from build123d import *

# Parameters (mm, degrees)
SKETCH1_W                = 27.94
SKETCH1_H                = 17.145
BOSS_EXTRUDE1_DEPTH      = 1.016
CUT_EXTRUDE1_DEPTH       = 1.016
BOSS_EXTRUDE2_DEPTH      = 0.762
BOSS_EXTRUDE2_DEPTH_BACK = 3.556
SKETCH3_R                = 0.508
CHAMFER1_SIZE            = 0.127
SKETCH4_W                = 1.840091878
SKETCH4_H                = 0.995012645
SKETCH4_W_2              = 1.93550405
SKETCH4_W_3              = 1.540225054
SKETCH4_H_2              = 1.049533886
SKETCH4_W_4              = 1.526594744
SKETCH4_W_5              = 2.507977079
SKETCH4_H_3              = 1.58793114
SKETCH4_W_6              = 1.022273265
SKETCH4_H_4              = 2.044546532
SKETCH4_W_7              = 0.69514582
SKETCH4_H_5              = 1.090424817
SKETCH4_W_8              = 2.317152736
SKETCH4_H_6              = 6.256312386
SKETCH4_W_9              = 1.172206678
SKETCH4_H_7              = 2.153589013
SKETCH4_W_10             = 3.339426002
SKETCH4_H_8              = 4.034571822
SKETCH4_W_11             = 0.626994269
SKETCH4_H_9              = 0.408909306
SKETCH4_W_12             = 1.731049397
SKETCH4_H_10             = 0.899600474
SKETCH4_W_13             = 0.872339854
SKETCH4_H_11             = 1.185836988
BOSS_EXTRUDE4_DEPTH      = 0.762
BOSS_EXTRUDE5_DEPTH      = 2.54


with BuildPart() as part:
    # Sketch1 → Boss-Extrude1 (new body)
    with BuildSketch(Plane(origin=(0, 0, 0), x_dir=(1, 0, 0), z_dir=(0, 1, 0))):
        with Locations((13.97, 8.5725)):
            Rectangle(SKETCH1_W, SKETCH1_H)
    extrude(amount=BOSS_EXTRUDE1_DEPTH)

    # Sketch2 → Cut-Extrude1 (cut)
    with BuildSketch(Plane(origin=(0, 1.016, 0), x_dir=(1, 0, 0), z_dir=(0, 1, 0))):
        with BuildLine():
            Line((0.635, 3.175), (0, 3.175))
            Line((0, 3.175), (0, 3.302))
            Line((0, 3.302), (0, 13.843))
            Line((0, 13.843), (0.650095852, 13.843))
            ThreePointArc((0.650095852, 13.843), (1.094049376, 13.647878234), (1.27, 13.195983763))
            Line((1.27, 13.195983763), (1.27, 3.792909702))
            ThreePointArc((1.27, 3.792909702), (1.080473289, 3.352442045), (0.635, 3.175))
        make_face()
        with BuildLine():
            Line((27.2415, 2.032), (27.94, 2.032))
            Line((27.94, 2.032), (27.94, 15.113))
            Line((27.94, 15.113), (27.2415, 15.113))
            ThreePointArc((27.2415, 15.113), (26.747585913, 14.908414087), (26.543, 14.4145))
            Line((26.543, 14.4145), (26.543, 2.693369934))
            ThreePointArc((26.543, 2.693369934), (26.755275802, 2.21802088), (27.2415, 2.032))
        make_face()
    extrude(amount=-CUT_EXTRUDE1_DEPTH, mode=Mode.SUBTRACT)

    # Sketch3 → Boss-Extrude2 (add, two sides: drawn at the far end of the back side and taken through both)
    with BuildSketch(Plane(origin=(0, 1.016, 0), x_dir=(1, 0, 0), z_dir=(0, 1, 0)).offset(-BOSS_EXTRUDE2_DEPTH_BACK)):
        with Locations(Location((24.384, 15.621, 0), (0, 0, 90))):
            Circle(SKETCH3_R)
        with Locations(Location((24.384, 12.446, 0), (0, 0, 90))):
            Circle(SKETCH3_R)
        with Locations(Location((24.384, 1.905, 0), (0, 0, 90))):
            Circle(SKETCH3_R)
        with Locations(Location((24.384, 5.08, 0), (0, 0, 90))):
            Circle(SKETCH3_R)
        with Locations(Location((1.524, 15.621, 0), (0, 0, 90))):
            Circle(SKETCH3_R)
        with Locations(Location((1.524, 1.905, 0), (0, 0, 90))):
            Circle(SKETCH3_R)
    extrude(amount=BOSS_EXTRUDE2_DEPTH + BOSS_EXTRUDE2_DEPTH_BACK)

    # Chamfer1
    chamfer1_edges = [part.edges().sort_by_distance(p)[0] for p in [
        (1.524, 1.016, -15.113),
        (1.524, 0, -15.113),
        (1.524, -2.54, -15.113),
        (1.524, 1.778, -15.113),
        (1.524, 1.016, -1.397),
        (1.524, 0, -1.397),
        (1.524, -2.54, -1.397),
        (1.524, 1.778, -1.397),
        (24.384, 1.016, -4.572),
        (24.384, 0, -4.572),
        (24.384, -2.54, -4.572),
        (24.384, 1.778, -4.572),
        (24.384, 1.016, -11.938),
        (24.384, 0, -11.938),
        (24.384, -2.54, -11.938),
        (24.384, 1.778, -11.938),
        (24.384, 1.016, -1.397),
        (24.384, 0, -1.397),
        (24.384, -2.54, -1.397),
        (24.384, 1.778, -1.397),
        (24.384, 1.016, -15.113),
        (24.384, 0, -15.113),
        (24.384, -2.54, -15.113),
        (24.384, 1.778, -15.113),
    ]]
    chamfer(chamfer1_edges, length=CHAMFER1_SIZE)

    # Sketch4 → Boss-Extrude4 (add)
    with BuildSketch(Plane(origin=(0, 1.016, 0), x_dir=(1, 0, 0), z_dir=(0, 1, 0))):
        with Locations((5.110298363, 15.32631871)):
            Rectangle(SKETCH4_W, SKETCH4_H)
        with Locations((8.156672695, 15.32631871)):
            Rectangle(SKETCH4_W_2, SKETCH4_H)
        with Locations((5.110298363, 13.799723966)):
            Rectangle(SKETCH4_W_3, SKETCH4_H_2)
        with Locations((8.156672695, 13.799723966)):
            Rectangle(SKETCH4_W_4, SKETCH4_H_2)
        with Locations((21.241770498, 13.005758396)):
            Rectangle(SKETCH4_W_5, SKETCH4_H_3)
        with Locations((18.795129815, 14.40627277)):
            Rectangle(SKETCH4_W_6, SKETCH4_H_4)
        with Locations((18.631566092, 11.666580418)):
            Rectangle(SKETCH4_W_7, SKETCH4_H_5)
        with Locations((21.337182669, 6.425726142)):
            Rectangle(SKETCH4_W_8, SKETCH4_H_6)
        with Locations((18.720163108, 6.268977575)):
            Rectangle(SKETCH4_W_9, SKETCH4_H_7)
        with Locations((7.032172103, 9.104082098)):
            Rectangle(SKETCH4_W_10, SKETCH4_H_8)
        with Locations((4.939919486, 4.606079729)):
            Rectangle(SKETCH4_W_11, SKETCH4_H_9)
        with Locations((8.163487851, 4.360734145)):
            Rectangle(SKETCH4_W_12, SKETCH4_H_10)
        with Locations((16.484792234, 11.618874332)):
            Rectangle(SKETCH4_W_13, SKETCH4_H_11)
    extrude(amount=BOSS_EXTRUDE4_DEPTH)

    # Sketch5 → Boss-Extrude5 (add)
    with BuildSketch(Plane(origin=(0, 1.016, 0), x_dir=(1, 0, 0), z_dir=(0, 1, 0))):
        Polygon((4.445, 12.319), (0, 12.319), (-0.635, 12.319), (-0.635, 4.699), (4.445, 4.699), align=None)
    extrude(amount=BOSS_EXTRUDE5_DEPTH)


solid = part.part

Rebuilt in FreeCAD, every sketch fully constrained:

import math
import FreeCAD as App
import Part
import Sketcher
Q = App.Units.Quantity


def edges_at(feature, points):
    """Names of the edges that pass closest to the given points."""
    edges = feature.Shape.Edges
    near = lambda p: min(range(len(edges)), key=lambda i: edges[i].distToShape(Part.Vertex(*p))[0])
    return sorted({f"Edge{near(p) + 1}" for p in points})

doc = App.newDocument("Part")
body = doc.addObject("PartDesign::Body", "Body")

# Sketch on XZ plane
sketch1 = body.newObject("Sketcher::SketchObject", "Sketch")
sketch1.AttachmentSupport = (doc.getObject("XZ_Plane"), [""])
sketch1.MapMode = "FlatFace"
sketch1.addGeometry([
    Part.LineSegment(App.Vector(0, -17, 0), App.Vector(0, 0, 0)),
    Part.LineSegment(App.Vector(0, 0, 0), App.Vector(28, 0, 0)),
    Part.LineSegment(App.Vector(28, 0, 0), App.Vector(28, -17, 0)),
    Part.LineSegment(App.Vector(28, -17, 0), App.Vector(0, -17, 0)),
], False)
sketch1.addConstraint([
    Sketcher.Constraint("Coincident", 0, 2, 1, 1),
    Sketcher.Constraint("Coincident", 1, 2, 2, 1),
    Sketcher.Constraint("Coincident", 2, 2, 3, 1),
    Sketcher.Constraint("Coincident", 3, 2, 0, 1),
    Sketcher.Constraint("Vertical", 0),
    Sketcher.Constraint("Horizontal", 1),
    Sketcher.Constraint("Vertical", 2),
    Sketcher.Constraint("Horizontal", 3),
    Sketcher.Constraint("Coincident", 0, 2, -1, 1),
    Sketcher.Constraint("DistanceX", 1, 1, 1, 2, Q("1.1 in")),
    Sketcher.Constraint("DistanceY", 0, 1, 0, 2, Q("0.675 in")),
])
pad1 = body.newObject("PartDesign::Pad", "Pad")
pad1.Profile = sketch1
pad1.Length = Q("0.04 in")
pad1.Reversed = True

# Sketch on XZ plane
sketch2 = body.newObject("Sketcher::SketchObject", "Sketch001")
sketch2.AttachmentSupport = (doc.getObject("XZ_Plane"), [""])
sketch2.MapMode = "FlatFace"
sketch2.AttachmentOffset = App.Placement(App.Vector(0, 0, -0.04 * 25.4), App.Rotation())
sketch2.addGeometry([
    Part.LineSegment(App.Vector(0, -3.2, 0), App.Vector(0.6, -3.2, 0)),  # 0
    Part.ArcOfCircle(Part.Circle(App.Vector(0.6, -3.8, 0), App.Vector(0, 0, 1), 0.6), math.radians(1), math.radians(91)),  # 1
    Part.LineSegment(App.Vector(1.3, -3.8, 0), App.Vector(1.3, -13.2, 0)),  # 2
    Part.ArcOfCircle(Part.Circle(App.Vector(0.6, -13.2, 0), App.Vector(0, 0, 1), 0.6), math.radians(-89), math.radians(1)),  # 3
    Part.LineSegment(App.Vector(0.7, -13.8, 0), App.Vector(0, -13.8, 0)),  # 4
    Part.LineSegment(App.Vector(0, -13.8, 0), App.Vector(0, -3.2, 0)),  # 5
    Part.LineSegment(App.Vector(27.2, -2, 0), App.Vector(27.9, -2, 0)),  # 6
    Part.LineSegment(App.Vector(27.9, -2, 0), App.Vector(27.9, -15.1, 0)),  # 7
    Part.LineSegment(App.Vector(27.9, -15.1, 0), App.Vector(27.2, -15.1, 0)),  # 8
    Part.ArcOfCircle(Part.Circle(App.Vector(27.2, -14.4, 0), App.Vector(0, 0, 1), 0.7), math.radians(180), math.radians(270)),  # 9
    Part.LineSegment(App.Vector(26.5, -14.4, 0), App.Vector(26.5, -2.7, 0)),  # 10
    Part.ArcOfCircle(Part.Circle(App.Vector(27.2, -2.7, 0), App.Vector(0, 0, 1), 0.7), math.radians(88), math.radians(178)),  # 11
], False)
sketch2.addConstraint([
    Sketcher.Constraint("Coincident", 0, 2, 1, 2),
    Sketcher.Constraint("Coincident", 1, 1, 2, 1),
    Sketcher.Constraint("Coincident", 2, 2, 3, 2),
    Sketcher.Constraint("Coincident", 3, 1, 4, 1),
    Sketcher.Constraint("Coincident", 4, 2, 5, 1),
    Sketcher.Constraint("Coincident", 5, 2, 0, 1),
    Sketcher.Constraint("Coincident", 6, 2, 7, 1),
    Sketcher.Constraint("Coincident", 7, 2, 8, 1),
    Sketcher.Constraint("Tangent", 8, 2, 9, 2),
    Sketcher.Constraint("Tangent", 9, 1, 10, 1),
    Sketcher.Constraint("Coincident", 10, 2, 11, 2),
    Sketcher.Constraint("Coincident", 11, 1, 6, 1),
    Sketcher.Constraint("Horizontal", 0),
    Sketcher.Constraint("Vertical", 2),
    Sketcher.Constraint("Horizontal", 4),
    Sketcher.Constraint("Vertical", 5),
    Sketcher.Constraint("Horizontal", 6),
    Sketcher.Constraint("Vertical", 7),
    Sketcher.Constraint("Horizontal", 8),
    Sketcher.Constraint("Vertical", 10),
    Sketcher.Constraint("PointOnObject", 4, 2, -2),
    Sketcher.Constraint("Vertical", 8, 2, 11, 1),
    Sketcher.Constraint("DistanceY", 5, 1, 5, 2, Q("0.42 in")),
    Sketcher.Constraint("DistanceX", -1, 1, 6, 2, Q("1.1 in")),
    Sketcher.Constraint("Radius", 9, Q("0.0275 in")),
    Sketcher.Constraint("DistanceX", 0, 1, 0, 2, Q("0.025 in")),
    Sketcher.Constraint("DistanceY", 7, 2, 7, 1, Q("0.515 in")),
    Sketcher.Constraint("DistanceX", -1, 1, 1, 1, Q("0.05 in")),
    Sketcher.Constraint("DistanceY", 6, 2, -1, 1, Q("0.08 in")),
    Sketcher.Constraint("DistanceY", 7, 2, 3, 1, Q("0.05 in")),
    Sketcher.Constraint("DistanceX", 6, 1, 6, 2, Q("0.0275 in")),
    Sketcher.Constraint("Radius", 11, Q("0.680188 mm")),
    Sketcher.Constraint("Radius", 1, Q("0.626513 mm")),
    Sketcher.Constraint("Radius", 3, Q("0.633605 mm")),
    Sketcher.Constraint("DistanceY", 10, 1, 10, 2, Q("11.72113 mm")),
    Sketcher.Constraint("DistanceX", 4, 2, 4, 1, Q("0.650096 mm")),
    Sketcher.Constraint("DistanceY", 2, 2, 2, 1, Q("9.403074 mm")),
    Sketcher.Constraint("DistanceX", -1, 1, 3, 3, Q("0.63654 mm")),
])
pocket1 = body.newObject("PartDesign::Pocket", "Pocket")
pocket1.Profile = sketch2
pocket1.Length = Q("0.04 in")
pocket1.Reversed = True

# Sketch on XZ plane
sketch3 = body.newObject("Sketcher::SketchObject", "Sketch002")
sketch3.AttachmentSupport = (doc.getObject("XZ_Plane"), [""])
sketch3.MapMode = "FlatFace"
sketch3.AttachmentOffset = App.Placement(App.Vector(0, 0, -0.04 * 25.4), App.Rotation())
sketch3.addGeometry([
    Part.Circle(App.Vector(24.4, -15.6, 0), App.Vector(0, 0, 1), 0.5),  # 0
    Part.Circle(App.Vector(24.4, -12.4, 0), App.Vector(0, 0, 1), 0.5),  # 1
    Part.Circle(App.Vector(24.4, -1.9, 0), App.Vector(0, 0, 1), 0.5),  # 2
    Part.Circle(App.Vector(24.4, -5.1, 0), App.Vector(0, 0, 1), 0.5),  # 3
    Part.Circle(App.Vector(1.5, -15.6, 0), App.Vector(0, 0, 1), 0.5),  # 4
    Part.Circle(App.Vector(1.5, -1.9, 0), App.Vector(0, 0, 1), 0.5),  # 5
], False)
sketch3.addConstraint([
    Sketcher.Constraint("Equal", 0, 1),
    Sketcher.Constraint("Equal", 1, 2),
    Sketcher.Constraint("Equal", 2, 3),
    Sketcher.Constraint("Equal", 3, 4),
    Sketcher.Constraint("Equal", 4, 5),
    Sketcher.Constraint("Horizontal", 0, 3, 4, 3),
    Sketcher.Constraint("Horizontal", 2, 3, 5, 3),
    Sketcher.Constraint("Vertical", 0, 3, 1, 3),
    Sketcher.Constraint("Vertical", 1, 3, 2, 3),
    Sketcher.Constraint("Vertical", 2, 3, 3, 3),
    Sketcher.Constraint("Vertical", 4, 3, 5, 3),
    Sketcher.Constraint("Diameter", 0, Q("0.04 in")),
    Sketcher.Constraint("DistanceY", 3, 3, -1, 1, Q("0.2 in")),
    Sketcher.Constraint("DistanceX", 4, 3, 0, 3, Q("0.9 in")),
    Sketcher.Constraint("DistanceX", -1, 1, 0, 3, Q("0.96 in")),
    Sketcher.Constraint("DistanceY", 1, 3, -1, 1, Q("0.49 in")),
    Sketcher.Constraint("DistanceY", 0, 3, 2, 3, Q("0.54 in")),
    Sketcher.Constraint("DistanceY", 0, 3, -1, 1, Q("0.615 in")),
])
pad2 = body.newObject("PartDesign::Pad", "Pad001")
pad2.Profile = sketch3
pad2.Type = "TwoLengths"
pad2.Length = Q("0.03 in")
pad2.Length2 = Q("0.14 in")
pad2.Reversed = True
doc.recompute()

chamfer = body.newObject("PartDesign::Chamfer", "Chamfer")
chamfer.Base = (pad2, edges_at(pad2, [
    (1.524, 1.016, -15.113),
    (1.524, 0, -15.113),
    (1.524, -2.54, -15.113),
    (1.524, 1.778, -15.113),
    (1.524, 1.016, -1.397),
    (1.524, 0, -1.397),
    (1.524, -2.54, -1.397),
    (1.524, 1.778, -1.397),
    (24.384, 1.016, -4.572),
    (24.384, 0, -4.572),
    (24.384, -2.54, -4.572),
    (24.384, 1.778, -4.572),
    (24.384, 1.016, -11.938),
    (24.384, 0, -11.938),
    (24.384, -2.54, -11.938),
    (24.384, 1.778, -11.938),
    (24.384, 1.016, -1.397),
    (24.384, 0, -1.397),
    (24.384, -2.54, -1.397),
    (24.384, 1.778, -1.397),
    (24.384, 1.016, -15.113),
    (24.384, 0, -15.113),
    (24.384, -2.54, -15.113),
    (24.384, 1.778, -15.113),
]))
chamfer.Size = Q("0.005 in")

# Sketch on XZ plane
sketch4 = body.newObject("Sketcher::SketchObject", "Sketch003")
sketch4.AttachmentSupport = (doc.getObject("XZ_Plane"), [""])
sketch4.MapMode = "FlatFace"
sketch4.AttachmentOffset = App.Placement(App.Vector(0, 0, -0.04 * 25.4), App.Rotation())
sketch4.addGeometry([
    Part.LineSegment(App.Vector(4.19, -15.82, 0), App.Vector(4.19, -14.83, 0)),  # 0
    Part.LineSegment(App.Vector(4.19, -14.83, 0), App.Vector(6.03, -14.83, 0)),  # 1
    Part.LineSegment(App.Vector(6.03, -14.83, 0), App.Vector(6.03, -15.82, 0)),  # 2
    Part.LineSegment(App.Vector(6.03, -15.82, 0), App.Vector(4.19, -15.82, 0)),  # 3
    Part.LineSegment(App.Vector(7.19, -15.82, 0), App.Vector(7.19, -14.83, 0)),  # 4
    Part.LineSegment(App.Vector(7.19, -14.83, 0), App.Vector(9.12, -14.83, 0)),  # 5
    Part.LineSegment(App.Vector(9.12, -14.83, 0), App.Vector(9.12, -15.82, 0)),  # 6
    Part.LineSegment(App.Vector(9.12, -15.82, 0), App.Vector(7.19, -15.82, 0)),  # 7
    Part.LineSegment(App.Vector(4.34, -14.32, 0), App.Vector(4.34, -13.27, 0)),  # 8
    Part.LineSegment(App.Vector(4.34, -13.27, 0), App.Vector(5.88, -13.27, 0)),  # 9
    Part.LineSegment(App.Vector(5.88, -13.27, 0), App.Vector(5.88, -14.32, 0)),  # 10
    Part.LineSegment(App.Vector(5.88, -14.32, 0), App.Vector(4.34, -14.32, 0)),  # 11
    Part.LineSegment(App.Vector(7.39, -14.32, 0), App.Vector(7.39, -13.27, 0)),  # 12
    Part.LineSegment(App.Vector(7.39, -13.27, 0), App.Vector(8.92, -13.27, 0)),  # 13
    Part.LineSegment(App.Vector(8.92, -13.27, 0), App.Vector(8.92, -14.32, 0)),  # 14
    Part.LineSegment(App.Vector(8.92, -14.32, 0), App.Vector(7.39, -14.32, 0)),  # 15
    Part.LineSegment(App.Vector(19.99, -13.8, 0), App.Vector(19.99, -12.21, 0)),  # 16
    Part.LineSegment(App.Vector(19.99, -12.21, 0), App.Vector(22.5, -12.21, 0)),  # 17
    Part.LineSegment(App.Vector(22.5, -12.21, 0), App.Vector(22.5, -13.8, 0)),  # 18
    Part.LineSegment(App.Vector(22.5, -13.8, 0), App.Vector(19.99, -13.8, 0)),  # 19
    Part.LineSegment(App.Vector(18.28, -15.43, 0), App.Vector(18.28, -13.38, 0)),  # 20
    Part.LineSegment(App.Vector(18.28, -13.38, 0), App.Vector(19.31, -13.38, 0)),  # 21
    Part.LineSegment(App.Vector(19.31, -13.38, 0), App.Vector(19.31, -15.43, 0)),  # 22
    Part.LineSegment(App.Vector(19.31, -15.43, 0), App.Vector(18.28, -15.43, 0)),  # 23
    Part.LineSegment(App.Vector(18.28, -12.21, 0), App.Vector(18.28, -11.12, 0)),  # 24
    Part.LineSegment(App.Vector(18.28, -11.12, 0), App.Vector(18.98, -11.12, 0)),  # 25
    Part.LineSegment(App.Vector(18.98, -11.12, 0), App.Vector(18.98, -12.21, 0)),  # 26
    Part.LineSegment(App.Vector(18.98, -12.21, 0), App.Vector(18.28, -12.21, 0)),  # 27
    Part.LineSegment(App.Vector(20.18, -9.55, 0), App.Vector(20.18, -3.3, 0)),  # 28
    Part.LineSegment(App.Vector(20.18, -3.3, 0), App.Vector(22.5, -3.3, 0)),  # 29
    Part.LineSegment(App.Vector(22.5, -3.3, 0), App.Vector(22.5, -9.55, 0)),  # 30
    Part.LineSegment(App.Vector(22.5, -9.55, 0), App.Vector(20.18, -9.55, 0)),  # 31
    Part.LineSegment(App.Vector(18.13, -7.35, 0), App.Vector(18.13, -5.19, 0)),  # 32
    Part.LineSegment(App.Vector(18.13, -5.19, 0), App.Vector(19.31, -5.19, 0)),  # 33
    Part.LineSegment(App.Vector(19.31, -5.19, 0), App.Vector(19.31, -7.35, 0)),  # 34
    Part.LineSegment(App.Vector(19.31, -7.35, 0), App.Vector(18.13, -7.35, 0)),  # 35
    Part.LineSegment(App.Vector(5.36, -11.12, 0), App.Vector(5.36, -7.09, 0)),  # 36
    Part.LineSegment(App.Vector(5.36, -7.09, 0), App.Vector(8.7, -7.09, 0)),  # 37
    Part.LineSegment(App.Vector(8.7, -7.09, 0), App.Vector(8.7, -11.12, 0)),  # 38
    Part.LineSegment(App.Vector(8.7, -11.12, 0), App.Vector(5.36, -11.12, 0)),  # 39
    Part.LineSegment(App.Vector(4.63, -4.81, 0), App.Vector(4.63, -4.4, 0)),  # 40
    Part.LineSegment(App.Vector(4.63, -4.4, 0), App.Vector(5.25, -4.4, 0)),  # 41
    Part.LineSegment(App.Vector(5.25, -4.4, 0), App.Vector(5.25, -4.81, 0)),  # 42
    Part.LineSegment(App.Vector(5.25, -4.81, 0), App.Vector(4.63, -4.81, 0)),  # 43
    Part.LineSegment(App.Vector(7.3, -4.81, 0), App.Vector(7.3, -3.91, 0)),  # 44
    Part.LineSegment(App.Vector(7.3, -3.91, 0), App.Vector(9.03, -3.91, 0)),  # 45
    Part.LineSegment(App.Vector(9.03, -3.91, 0), App.Vector(9.03, -4.81, 0)),  # 46
    Part.LineSegment(App.Vector(9.03, -4.81, 0), App.Vector(7.3, -4.81, 0)),  # 47
    Part.LineSegment(App.Vector(16.05, -12.21, 0), App.Vector(16.05, -11.03, 0)),  # 48
    Part.LineSegment(App.Vector(16.05, -11.03, 0), App.Vector(16.92, -11.03, 0)),  # 49
    Part.LineSegment(App.Vector(16.92, -11.03, 0), App.Vector(16.92, -12.21, 0)),  # 50
    Part.LineSegment(App.Vector(16.92, -12.21, 0), App.Vector(16.05, -12.21, 0)),  # 51
], False)
sketch4.addConstraint([
    Sketcher.Constraint("Coincident", 0, 2, 1, 1),
    Sketcher.Constraint("Coincident", 1, 2, 2, 1),
    Sketcher.Constraint("Coincident", 2, 2, 3, 1),
    Sketcher.Constraint("Coincident", 3, 2, 0, 1),
    Sketcher.Constraint("Coincident", 4, 2, 5, 1),
    Sketcher.Constraint("Coincident", 5, 2, 6, 1),
    Sketcher.Constraint("Coincident", 6, 2, 7, 1),
    Sketcher.Constraint("Coincident", 7, 2, 4, 1),
    Sketcher.Constraint("Coincident", 8, 2, 9, 1),
    Sketcher.Constraint("Coincident", 9, 2, 10, 1),
    Sketcher.Constraint("Coincident", 10, 2, 11, 1),
    Sketcher.Constraint("Coincident", 11, 2, 8, 1),
    Sketcher.Constraint("Coincident", 12, 2, 13, 1),
    Sketcher.Constraint("Coincident", 13, 2, 14, 1),
    Sketcher.Constraint("Coincident", 14, 2, 15, 1),
    Sketcher.Constraint("Coincident", 15, 2, 12, 1),
    Sketcher.Constraint("Coincident", 16, 2, 17, 1),
    Sketcher.Constraint("Coincident", 17, 2, 18, 1),
    Sketcher.Constraint("Coincident", 18, 2, 19, 1),
    Sketcher.Constraint("Coincident", 19, 2, 16, 1),
    Sketcher.Constraint("Coincident", 20, 2, 21, 1),
    Sketcher.Constraint("Coincident", 21, 2, 22, 1),
    Sketcher.Constraint("Coincident", 22, 2, 23, 1),
    Sketcher.Constraint("Coincident", 23, 2, 20, 1),
    Sketcher.Constraint("Coincident", 24, 2, 25, 1),
    Sketcher.Constraint("Coincident", 25, 2, 26, 1),
    Sketcher.Constraint("Coincident", 26, 2, 27, 1),
    Sketcher.Constraint("Coincident", 27, 2, 24, 1),
    Sketcher.Constraint("Coincident", 28, 2, 29, 1),
    Sketcher.Constraint("Coincident", 29, 2, 30, 1),
    Sketcher.Constraint("Coincident", 30, 2, 31, 1),
    Sketcher.Constraint("Coincident", 31, 2, 28, 1),
    Sketcher.Constraint("Coincident", 32, 2, 33, 1),
    Sketcher.Constraint("Coincident", 33, 2, 34, 1),
    Sketcher.Constraint("Coincident", 34, 2, 35, 1),
    Sketcher.Constraint("Coincident", 35, 2, 32, 1),
    Sketcher.Constraint("Coincident", 36, 2, 37, 1),
    Sketcher.Constraint("Coincident", 37, 2, 38, 1),
    Sketcher.Constraint("Coincident", 38, 2, 39, 1),
    Sketcher.Constraint("Coincident", 39, 2, 36, 1),
    Sketcher.Constraint("Coincident", 40, 2, 41, 1),
    Sketcher.Constraint("Coincident", 41, 2, 42, 1),
    Sketcher.Constraint("Coincident", 42, 2, 43, 1),
    Sketcher.Constraint("Coincident", 43, 2, 40, 1),
    Sketcher.Constraint("Coincident", 44, 2, 45, 1),
    Sketcher.Constraint("Coincident", 45, 2, 46, 1),
    Sketcher.Constraint("Coincident", 46, 2, 47, 1),
    Sketcher.Constraint("Coincident", 47, 2, 44, 1),
    Sketcher.Constraint("Coincident", 48, 2, 49, 1),
    Sketcher.Constraint("Coincident", 49, 2, 50, 1),
    Sketcher.Constraint("Coincident", 50, 2, 51, 1),
    Sketcher.Constraint("Coincident", 51, 2, 48, 1),
    Sketcher.Constraint("Vertical", 0),
    Sketcher.Constraint("Horizontal", 1),
    Sketcher.Constraint("Vertical", 2),
    Sketcher.Constraint("Horizontal", 3),
    Sketcher.Constraint("Vertical", 4),
    Sketcher.Constraint("Horizontal", 5),
    Sketcher.Constraint("Vertical", 6),
    Sketcher.Constraint("Horizontal", 7),
    Sketcher.Constraint("Vertical", 8),
    Sketcher.Constraint("Horizontal", 9),
    Sketcher.Constraint("Vertical", 10),
    Sketcher.Constraint("Horizontal", 11),
    Sketcher.Constraint("Vertical", 12),
    Sketcher.Constraint("Horizontal", 13),
    Sketcher.Constraint("Vertical", 14),
    Sketcher.Constraint("Horizontal", 15),
    Sketcher.Constraint("Vertical", 16),
    Sketcher.Constraint("Horizontal", 17),
    Sketcher.Constraint("Vertical", 18),
    Sketcher.Constraint("Horizontal", 19),
    Sketcher.Constraint("Vertical", 20),
    Sketcher.Constraint("Horizontal", 21),
    Sketcher.Constraint("Vertical", 22),
    Sketcher.Constraint("Horizontal", 23),
    Sketcher.Constraint("Vertical", 24),
    Sketcher.Constraint("Horizontal", 25),
    Sketcher.Constraint("Vertical", 26),
    Sketcher.Constraint("Horizontal", 27),
    Sketcher.Constraint("Vertical", 28),
    Sketcher.Constraint("Horizontal", 29),
    Sketcher.Constraint("Vertical", 30),
    Sketcher.Constraint("Horizontal", 31),
    Sketcher.Constraint("Vertical", 32),
    Sketcher.Constraint("Horizontal", 33),
    Sketcher.Constraint("Vertical", 34),
    Sketcher.Constraint("Horizontal", 35),
    Sketcher.Constraint("Vertical", 36),
    Sketcher.Constraint("Horizontal", 37),
    Sketcher.Constraint("Vertical", 38),
    Sketcher.Constraint("Horizontal", 39),
    Sketcher.Constraint("Vertical", 40),
    Sketcher.Constraint("Horizontal", 41),
    Sketcher.Constraint("Vertical", 42),
    Sketcher.Constraint("Horizontal", 43),
    Sketcher.Constraint("Vertical", 44),
    Sketcher.Constraint("Horizontal", 45),
    Sketcher.Constraint("Vertical", 46),
    Sketcher.Constraint("Horizontal", 47),
    Sketcher.Constraint("Vertical", 48),
    Sketcher.Constraint("Horizontal", 49),
    Sketcher.Constraint("Vertical", 50),
    Sketcher.Constraint("Horizontal", 51),
    Sketcher.Constraint("Horizontal", 1, 2, 4, 2),
    Sketcher.Constraint("Horizontal", 3, 2, 6, 2),
    Sketcher.Constraint("Horizontal", 9, 2, 12, 2),
    Sketcher.Constraint("Horizontal", 11, 2, 14, 2),
    Sketcher.Constraint("Horizontal", 17, 2, 26, 2),
    Sketcher.Constraint("Horizontal", 25, 2, 38, 2),
    Sketcher.Constraint("Horizontal", 43, 2, 46, 2),
    Sketcher.Constraint("Horizontal", 27, 2, 50, 2),
    Sketcher.Constraint("Vertical", 23, 2, 24, 2),
    Sketcher.Constraint("Vertical", 18, 2, 29, 2),
    Sketcher.Constraint("Vertical", 22, 2, 33, 2),
    Sketcher.Constraint("DistanceY", 44, 1, 44, 2, Q("0.8996 mm")),
    Sketcher.Constraint("DistanceX", 1, 1, 1, 2, Q("1.840092 mm")),
    Sketcher.Constraint("DistanceX", 45, 1, 45, 2, Q("1.731049 mm")),
    Sketcher.Constraint("DistanceX", 49, 1, 49, 2, Q("0.87234 mm")),
    Sketcher.Constraint("DistanceY", 16, 1, 16, 2, Q("1.587931 mm")),
    Sketcher.Constraint("DistanceY", 32, 1, 32, 2, Q("2.153589 mm")),
    Sketcher.Constraint("DistanceY", 36, 1, 36, 2, Q("4.034572 mm")),
    Sketcher.Constraint("DistanceY", 40, 1, 40, 2, Q("0.408909 mm")),
    Sketcher.Constraint("DistanceY", 20, 2, -1, 1, Q("13.384 mm")),
    Sketcher.Constraint("DistanceY", 14, 2, 16, 2, Q("2.112698 mm")),
    Sketcher.Constraint("DistanceY", 6, 2, 18, 2, Q("2.024101 mm")),
    Sketcher.Constraint("DistanceY", 25, 2, 28, 2, Q("7.823798 mm")),
    Sketcher.Constraint("DistanceX", 32, 2, 29, 2, Q("4.361699 mm")),
    Sketcher.Constraint("DistanceY", 31, 2, 32, 2, Q("4.361699 mm")),
    Sketcher.Constraint("DistanceX", 5, 1, 5, 2, Q("1.935504 mm")),
    Sketcher.Constraint("DistanceX", 9, 1, 9, 2, Q("1.540225 mm")),
    Sketcher.Constraint("DistanceX", 13, 1, 13, 2, Q("1.526595 mm")),
    Sketcher.Constraint("DistanceX", 17, 1, 17, 2, Q("2.507977 mm")),
    Sketcher.Constraint("DistanceX", 21, 1, 21, 2, Q("1.022273 mm")),
    Sketcher.Constraint("DistanceX", 25, 1, 25, 2, Q("0.695146 mm")),
    Sketcher.Constraint("DistanceX", 29, 1, 29, 2, Q("2.317153 mm")),
    Sketcher.Constraint("DistanceX", 33, 1, 33, 2, Q("1.172207 mm")),
    Sketcher.Constraint("DistanceX", 37, 1, 37, 2, Q("3.339426 mm")),
    Sketcher.Constraint("DistanceX", 41, 1, 41, 2, Q("0.626994 mm")),
    Sketcher.Constraint("DistanceY", 0, 1, 0, 2, Q("0.995013 mm")),
    Sketcher.Constraint("DistanceY", 8, 1, 8, 2, Q("1.049534 mm")),
    Sketcher.Constraint("DistanceY", 20, 1, 20, 2, Q("2.044547 mm")),
    Sketcher.Constraint("DistanceY", 24, 1, 24, 2, Q("1.090425 mm")),
    Sketcher.Constraint("DistanceY", 28, 1, 28, 2, Q("6.256312 mm")),
    Sketcher.Constraint("DistanceY", 48, 1, 48, 2, Q("1.185837 mm")),
    Sketcher.Constraint("DistanceX", -1, 1, 4, 2, Q("7.188921 mm")),
    Sketcher.Constraint("DistanceX", -1, 1, 9, 2, Q("5.880411 mm")),
    Sketcher.Constraint("DistanceY", 10, 2, -1, 1, Q("14.324491 mm")),
    Sketcher.Constraint("DistanceX", -1, 1, 13, 2, Q("8.91997 mm")),
    Sketcher.Constraint("DistanceX", -1, 1, 16, 2, Q("19.987782 mm")),
    Sketcher.Constraint("DistanceX", -1, 1, 36, 2, Q("5.362459 mm")),
    Sketcher.Constraint("DistanceX", 0, 2, 4, 2, Q("2.998668 mm")),
    Sketcher.Constraint("DistanceY", 36, 2, 40, 2, Q("2.685171 mm")),
    Sketcher.Constraint("DistanceX", 41, 2, 37, 2, Q("3.448468 mm")),
    Sketcher.Constraint("DistanceX", 40, 2, 44, 2, Q("2.671541 mm")),
    Sketcher.Constraint("DistanceX", 48, 2, 24, 2, Q("2.235371 mm")),
])
pad3 = body.newObject("PartDesign::Pad", "Pad002")
pad3.Profile = sketch4
pad3.Length = Q("0.03 in")
pad3.Reversed = True

# Sketch on XZ plane
sketch5 = body.newObject("Sketcher::SketchObject", "Sketch004")
sketch5.AttachmentSupport = (doc.getObject("XZ_Plane"), [""])
sketch5.MapMode = "FlatFace"
sketch5.AttachmentOffset = App.Placement(App.Vector(0, 0, -0.04 * 25.4), App.Rotation())
sketch5.addGeometry([
    Part.LineSegment(App.Vector(4, -12, 0), App.Vector(-1, -12, 0)),
    Part.LineSegment(App.Vector(-1, -12, 0), App.Vector(-1, -5, 0)),
    Part.LineSegment(App.Vector(-1, -5, 0), App.Vector(4, -5, 0)),
    Part.LineSegment(App.Vector(4, -5, 0), App.Vector(4, -12, 0)),
], False)
sketch5.addConstraint([
    Sketcher.Constraint("Coincident", 0, 2, 1, 1),
    Sketcher.Constraint("Coincident", 1, 2, 2, 1),
    Sketcher.Constraint("Coincident", 2, 2, 3, 1),
    Sketcher.Constraint("Coincident", 3, 2, 0, 1),
    Sketcher.Constraint("Horizontal", 0),
    Sketcher.Constraint("Vertical", 1),
    Sketcher.Constraint("Horizontal", 2),
    Sketcher.Constraint("Vertical", 3),
    Sketcher.Constraint("DistanceX", 0, 2, 0, 1, Q("0.2 in")),
    Sketcher.Constraint("DistanceY", 1, 1, 1, 2, Q("0.3 in")),
    Sketcher.Constraint("DistanceX", 0, 2, -1, 1, Q("0.025 in")),
    Sketcher.Constraint("DistanceY", 0, 2, -1, 1, Q("0.485 in")),
])
pad4 = body.newObject("PartDesign::Pad", "Pad003")
pad4.Profile = sketch5
pad4.Length = Q("0.1 in")
pad4.Reversed = True

doc.recompute()
